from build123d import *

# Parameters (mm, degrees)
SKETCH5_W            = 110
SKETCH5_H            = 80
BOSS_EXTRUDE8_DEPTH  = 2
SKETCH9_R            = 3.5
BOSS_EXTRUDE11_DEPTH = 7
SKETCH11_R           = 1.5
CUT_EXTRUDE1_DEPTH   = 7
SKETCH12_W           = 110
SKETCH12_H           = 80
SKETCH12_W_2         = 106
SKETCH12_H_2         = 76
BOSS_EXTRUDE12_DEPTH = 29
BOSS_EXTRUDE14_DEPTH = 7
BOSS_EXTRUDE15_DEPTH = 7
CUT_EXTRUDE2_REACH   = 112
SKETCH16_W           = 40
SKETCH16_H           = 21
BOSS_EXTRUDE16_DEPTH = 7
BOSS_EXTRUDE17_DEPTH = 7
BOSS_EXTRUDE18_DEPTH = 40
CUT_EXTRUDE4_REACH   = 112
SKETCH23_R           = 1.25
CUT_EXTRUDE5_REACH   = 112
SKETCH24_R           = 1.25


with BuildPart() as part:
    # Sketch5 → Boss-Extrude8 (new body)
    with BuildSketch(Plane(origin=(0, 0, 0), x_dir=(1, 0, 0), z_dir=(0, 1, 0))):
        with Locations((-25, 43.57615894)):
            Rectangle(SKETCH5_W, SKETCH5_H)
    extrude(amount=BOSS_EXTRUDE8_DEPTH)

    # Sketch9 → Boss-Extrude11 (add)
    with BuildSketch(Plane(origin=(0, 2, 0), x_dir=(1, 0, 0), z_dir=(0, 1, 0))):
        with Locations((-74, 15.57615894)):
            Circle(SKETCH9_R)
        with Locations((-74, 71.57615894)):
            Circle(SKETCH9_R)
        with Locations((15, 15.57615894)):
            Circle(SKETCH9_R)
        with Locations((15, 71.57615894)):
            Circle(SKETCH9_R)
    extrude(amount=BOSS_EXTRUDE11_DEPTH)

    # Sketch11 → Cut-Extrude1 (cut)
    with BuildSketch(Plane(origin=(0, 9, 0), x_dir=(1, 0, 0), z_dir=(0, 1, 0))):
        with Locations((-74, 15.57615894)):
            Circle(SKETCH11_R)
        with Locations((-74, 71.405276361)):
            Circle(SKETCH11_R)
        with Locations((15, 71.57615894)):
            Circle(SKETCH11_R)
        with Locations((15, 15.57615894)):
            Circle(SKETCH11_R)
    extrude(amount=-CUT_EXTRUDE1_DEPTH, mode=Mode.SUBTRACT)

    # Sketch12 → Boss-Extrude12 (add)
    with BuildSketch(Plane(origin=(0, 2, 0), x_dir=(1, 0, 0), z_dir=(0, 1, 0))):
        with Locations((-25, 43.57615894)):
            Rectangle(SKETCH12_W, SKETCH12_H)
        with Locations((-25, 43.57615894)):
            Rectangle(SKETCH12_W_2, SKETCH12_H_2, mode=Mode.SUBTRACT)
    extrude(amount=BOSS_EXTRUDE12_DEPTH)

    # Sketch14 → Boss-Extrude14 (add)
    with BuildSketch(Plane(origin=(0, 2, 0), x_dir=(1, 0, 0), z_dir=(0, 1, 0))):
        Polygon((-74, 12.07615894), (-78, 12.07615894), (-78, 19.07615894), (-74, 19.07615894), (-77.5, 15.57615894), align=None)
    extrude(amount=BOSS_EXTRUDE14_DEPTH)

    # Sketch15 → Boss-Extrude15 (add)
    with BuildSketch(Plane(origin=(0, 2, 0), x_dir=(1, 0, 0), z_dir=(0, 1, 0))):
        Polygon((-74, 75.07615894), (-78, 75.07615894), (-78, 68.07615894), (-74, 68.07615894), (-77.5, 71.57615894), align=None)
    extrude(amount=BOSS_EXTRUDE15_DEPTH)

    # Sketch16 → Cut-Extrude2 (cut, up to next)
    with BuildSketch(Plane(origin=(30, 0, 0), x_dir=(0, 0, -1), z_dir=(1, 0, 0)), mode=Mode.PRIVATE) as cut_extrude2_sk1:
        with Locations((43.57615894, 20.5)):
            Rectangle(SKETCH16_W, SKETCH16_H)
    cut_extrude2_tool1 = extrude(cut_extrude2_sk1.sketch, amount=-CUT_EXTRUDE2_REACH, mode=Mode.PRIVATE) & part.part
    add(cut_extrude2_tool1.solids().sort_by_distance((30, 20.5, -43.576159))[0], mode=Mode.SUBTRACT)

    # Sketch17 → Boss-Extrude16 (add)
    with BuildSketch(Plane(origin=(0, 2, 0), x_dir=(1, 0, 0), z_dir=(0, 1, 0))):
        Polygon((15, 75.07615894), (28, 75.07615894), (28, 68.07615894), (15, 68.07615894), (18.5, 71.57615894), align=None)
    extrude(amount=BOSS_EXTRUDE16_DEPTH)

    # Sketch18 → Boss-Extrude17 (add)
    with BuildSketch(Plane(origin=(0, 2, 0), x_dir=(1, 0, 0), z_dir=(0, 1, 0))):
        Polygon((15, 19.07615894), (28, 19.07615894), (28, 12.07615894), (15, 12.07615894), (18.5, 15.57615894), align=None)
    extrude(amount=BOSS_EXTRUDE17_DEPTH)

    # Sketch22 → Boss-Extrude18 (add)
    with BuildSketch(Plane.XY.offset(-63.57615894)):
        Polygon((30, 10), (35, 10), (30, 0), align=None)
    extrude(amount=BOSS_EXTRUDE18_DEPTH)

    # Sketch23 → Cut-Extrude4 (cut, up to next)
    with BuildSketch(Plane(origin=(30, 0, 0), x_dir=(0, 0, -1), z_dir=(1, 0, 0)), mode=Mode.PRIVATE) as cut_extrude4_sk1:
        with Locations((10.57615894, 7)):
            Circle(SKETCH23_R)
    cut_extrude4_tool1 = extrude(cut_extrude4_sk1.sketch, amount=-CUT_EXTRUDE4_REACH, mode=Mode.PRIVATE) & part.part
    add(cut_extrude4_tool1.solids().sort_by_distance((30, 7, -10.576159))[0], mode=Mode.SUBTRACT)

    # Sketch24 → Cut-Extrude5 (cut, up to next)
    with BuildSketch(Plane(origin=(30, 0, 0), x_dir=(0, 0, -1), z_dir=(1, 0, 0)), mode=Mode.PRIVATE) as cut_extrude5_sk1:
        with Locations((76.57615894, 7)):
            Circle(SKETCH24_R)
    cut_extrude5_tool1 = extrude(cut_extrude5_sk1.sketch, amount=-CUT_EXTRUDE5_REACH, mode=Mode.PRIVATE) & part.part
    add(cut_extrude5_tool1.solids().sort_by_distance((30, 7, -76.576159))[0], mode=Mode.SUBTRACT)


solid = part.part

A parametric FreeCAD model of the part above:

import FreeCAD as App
import Part
import Sketcher
from FreeCAD import Vector

doc = App.newDocument("Part")
body = doc.addObject("PartDesign::Body", "Body")

# Sketch on XZ plane
sketch1 = body.newObject("Sketcher::SketchObject", "Sketch")
sketch1.AttachmentSupport = (doc.getObject("XZ_Plane"), [""])
sketch1.MapMode = "FlatFace"
sketch1.addGeometry([
    Part.LineSegment(Vector(-80, -83.576159, 0), Vector(-80, -3.576159, 0)),
    Part.LineSegment(Vector(-80, -3.576159, 0), Vector(30, -3.576159, 0)),
    Part.LineSegment(Vector(30, -3.576159, 0), Vector(30, -83.576159, 0)),
    Part.LineSegment(Vector(30, -83.576159, 0), Vector(-80, -83.576159, 0)),
], False)
sketch1.addConstraint([
    Sketcher.Constraint("Coincident", 0, 2, 1, 1),
    Sketcher.Constraint("Coincident", 1, 2, 2, 1),
    Sketcher.Constraint("Coincident", 2, 2, 3, 1),
    Sketcher.Constraint("Coincident", 3, 2, 0, 1),
    Sketcher.Constraint("Vertical", 0),
    Sketcher.Constraint("Horizontal", 1),
    Sketcher.Constraint("Vertical", 2),
    Sketcher.Constraint("Horizontal", 3),
    Sketcher.Constraint("DistanceX", 1, 1, 1, 2, 110.0),
    Sketcher.Constraint("DistanceY", 0, 1, 0, 2, 80.0),
    Sketcher.Constraint("DistanceX", 0, 2, -1, 1, 80.0),
    Sketcher.Constraint("DistanceY", 0, 2, -1, 1, 3.576159),
])
pad1 = body.newObject("PartDesign::Pad", "Pad")
pad1.Profile = sketch1
pad1.Length = 2
pad1.Reversed = True

# Sketch on XZ plane
sketch2 = body.newObject("Sketcher::SketchObject", "Sketch001")
sketch2.AttachmentSupport = (doc.getObject("XZ_Plane"), [""])
sketch2.MapMode = "FlatFace"
sketch2.AttachmentOffset = App.Placement(Vector(0, 0, -2), App.Rotation())
sketch2.addGeometry([
    Part.Circle(Vector(-74, -15.576159, 0), Vector(0, 0, 1), 3.5),
    Part.Circle(Vector(-74, -71.576159, 0), Vector(0, 0, 1), 3.5),
    Part.Circle(Vector(15, -15.576159, 0), Vector(0, 0, 1), 3.5),
    Part.Circle(Vector(15, -71.576159, 0), Vector(0, 0, 1), 3.5),
], False)
sketch2.addConstraint([
    Sketcher.Constraint("Equal", 0, 1),
    Sketcher.Constraint("Equal", 1, 2),
    Sketcher.Constraint("Equal", 2, 3),
    Sketcher.Constraint("Horizontal", 0, 3, 2, 3),
    Sketcher.Constraint("Horizontal", 1, 3, 3, 3),
    Sketcher.Constraint("Vertical", 0, 3, 1, 3),
    Sketcher.Constraint("Vertical", 2, 3, 3, 3),
    Sketcher.Constraint("Diameter", 0, 7.0),
    Sketcher.Constraint("DistanceX", 0, 3, -1, 1, 74.0),
    Sketcher.Constraint("DistanceX", -1, 1, 2, 3, 15.0),
    Sketcher.Constraint("DistanceY", 1, 3, 0, 3, 56.0),
    Sketcher.Constraint("DistanceY", 0, 3, -1, 1, 15.576159),
])
pad2 = body.newObject("PartDesign::Pad", "Pad001")
pad2.Profile = sketch2
pad2.Length = 7
pad2.Reversed = True

# Sketch on XZ plane
sketch3 = body.newObject("Sketcher::SketchObject", "Sketch002")
sketch3.AttachmentSupport = (doc.getObject("XZ_Plane"), [""])
sketch3.MapMode = "FlatFace"
sketch3.AttachmentOffset = App.Placement(Vector(0, 0, -9), App.Rotation())
sketch3.addGeometry([
    Part.Circle(Vector(-74, -15.576159, 0), Vector(0, 0, 1), 1.5),
    Part.Circle(Vector(-74, -71.405276, 0), Vector(0, 0, 1), 1.5),
    Part.Circle(Vector(15, -71.576159, 0), Vector(0, 0, 1), 1.5),
    Part.Circle(Vector(15, -15.576159, 0), Vector(0, 0, 1), 1.5),
], False)
sketch3.addConstraint([
    Sketcher.Constraint("Equal", 0, 1),
    Sketcher.Constraint("Equal", 1, 2),
    Sketcher.Constraint("Equal", 2, 3),
    Sketcher.Constraint("Horizontal", 0, 3, 3, 3),
    Sketcher.Constraint("Vertical", 0, 3, 1, 3),
    Sketcher.Constraint("Vertical", 2, 3, 3, 3),
    Sketcher.Constraint("Diameter", 0, 3.0),
    Sketcher.Constraint("DistanceX", 0, 3, -1, 1, 74.0),
    Sketcher.Constraint("DistanceX", -1, 1, 2, 3, 15.0),
    Sketcher.Constraint("DistanceY", 2, 3, 0, 3, 56.0),
    Sketcher.Constraint("DistanceY", 0, 3, -1, 1, 15.576159),
    Sketcher.Constraint("DistanceY", 1, 3, -1, 1, 71.405276),
])
pocket1 = body.newObject("PartDesign::Pocket", "Pocket")
pocket1.Profile = sketch3
pocket1.Length = 7
pocket1.Reversed = True

# Sketch on XZ plane
sketch4 = body.newObject("Sketcher::SketchObject", "Sketch003")
sketch4.AttachmentSupport = (doc.getObject("XZ_Plane"), [""])
sketch4.MapMode = "FlatFace"
sketch4.AttachmentOffset = App.Placement(Vector(0, 0, -2), App.Rotation())
sketch4.addGeometry([
    Part.LineSegment(Vector(-80, -83.576159, 0), Vector(-80, -3.576159, 0)),  # 0
    Part.LineSegment(Vector(-80, -3.576159, 0), Vector(30, -3.576159, 0)),  # 1
    Part.LineSegment(Vector(30, -3.576159, 0), Vector(30, -83.576159, 0)),  # 2
    Part.LineSegment(Vector(30, -83.576159, 0), Vector(-80, -83.576159, 0)),  # 3
    Part.LineSegment(Vector(28, -5.576159, 0), Vector(-78, -5.576159, 0)),  # 4
    Part.LineSegment(Vector(-78, -5.576159, 0), Vector(-78, -81.576159, 0)),  # 5
    Part.LineSegment(Vector(-78, -81.576159, 0), Vector(28, -81.576159, 0)),  # 6
    Part.LineSegment(Vector(28, -81.576159, 0), Vector(28, -5.576159, 0)),  # 7
], False)
sketch4.addConstraint([
    Sketcher.Constraint("Coincident", 0, 2, 1, 1),
    Sketcher.Constraint("Coincident", 1, 2, 2, 1),
    Sketcher.Constraint("Coincident", 2, 2, 3, 1),
    Sketcher.Constraint("Coincident", 3, 2, 0, 1),
    Sketcher.Constraint("Coincident", 4, 2, 5, 1),
    Sketcher.Constraint("Coincident", 5, 2, 6, 1),
    Sketcher.Constraint("Coincident", 6, 2, 7, 1),
    Sketcher.Constraint("Coincident", 7, 2, 4, 1),
    Sketcher.Constraint("Vertical", 0),
    Sketcher.Constraint("Horizontal", 1),
    Sketcher.Constraint("Vertical", 2),
    Sketcher.Constraint("Horizontal", 3),
    Sketcher.Constraint("Horizontal", 4),
    Sketcher.Constraint("Vertical", 5),
    Sketcher.Constraint("Horizontal", 6),
    Sketcher.Constraint("Vertical", 7),
    Sketcher.Constraint("DistanceX", 1, 1, 1, 2, 110.0),
    Sketcher.Constraint("DistanceX", 4, 2, 4, 1, 106.0),
    Sketcher.Constraint("DistanceY", 0, 1, 0, 2, 80.0),
    Sketcher.Constraint("DistanceY", 5, 2, 5, 1, 76.0),
    Sketcher.Constraint("DistanceX", 0, 2, -1, 1, 80.0),
    Sketcher.Constraint("DistanceX", 4, 2, -1, 1, 78.0),
    Sketcher.Constraint("DistanceY", 4, 2, 0, 2, 2.0),
    Sketcher.Constraint("DistanceY", 0, 2, -1, 1, 3.576159),
])
pad3 = body.newObject("PartDesign::Pad", "Pad002")
pad3.Profile = sketch4
pad3.Length = 29
pad3.Reversed = True

# Sketch on XZ plane
sketch5 = body.newObject("Sketcher::SketchObject", "Sketch004")
sketch5.AttachmentSupport = (doc.getObject("XZ_Plane"), [""])
sketch5.MapMode = "FlatFace"
sketch5.AttachmentOffset = App.Placement(Vector(0, 0, -2), App.Rotation())
sketch5.addGeometry([
    Part.LineSegment(Vector(-78, -12.076159, 0), Vector(-74, -12.076159, 0)),  # 0
    Part.LineSegment(Vector(-74, -12.076159, 0), Vector(-77.5, -15.576159, 0)),  # 1
    Part.LineSegment(Vector(-77.5, -15.576159, 0), Vector(-74, -19.076159, 0)),  # 2
    Part.LineSegment(Vector(-74, -19.076159, 0), Vector(-78, -19.076159, 0)),  # 3
    Part.LineSegment(Vector(-78, -19.076159, 0), Vector(-78, -12.076159, 0)),  # 4
], False)
sketch5.addConstraint([
    Sketcher.Constraint("Coincident", 0, 2, 1, 1),
    Sketcher.Constraint("Coincident", 1, 2, 2, 1),
    Sketcher.Constraint("Coincident", 2, 2, 3, 1),
    Sketcher.Constraint("Coincident", 3, 2, 4, 1),
    Sketcher.Constraint("Coincident", 4, 2, 0, 1),
    Sketcher.Constraint("Horizontal", 0),
    Sketcher.Constraint("Horizontal", 3),
    Sketcher.Constraint("Vertical", 4),
    Sketcher.Constraint("Perpendicular", 1, 2),
    Sketcher.Constraint("Vertical", 0, 2, 2, 2),
    Sketcher.Constraint("Equal", 1, 2),
    Sketcher.Constraint("DistanceX", 0, 1, 0, 2, 4.0),
    Sketcher.Constraint("DistanceY", 4, 1, 4, 2, 7.0),
    Sketcher.Constraint("DistanceX", 0, 2, -1, 1, 74.0),
    Sketcher.Constraint("DistanceY", 0, 2, -1, 1, 12.076159),
])
pad4 = body.newObject("PartDesign::Pad", "Pad003")
pad4.Profile = sketch5
pad4.Length = 7
pad4.Reversed = True

# Sketch on XZ plane
sketch6 = body.newObject("Sketcher::SketchObject", "Sketch005")
sketch6.AttachmentSupport = (doc.getObject("XZ_Plane"), [""])
sketch6.MapMode = "FlatFace"
sketch6.AttachmentOffset = App.Placement(Vector(0, 0, -2), App.Rotation())
sketch6.addGeometry([
    Part.LineSegment(Vector(-74, -75.076159, 0), Vector(-78, -75.076159, 0)),  # 0
    Part.LineSegment(Vector(-78, -75.076159, 0), Vector(-78, -68.076159, 0)),  # 1
    Part.LineSegment(Vector(-78, -68.076159, 0), Vector(-74, -68.076159, 0)),  # 2
    Part.LineSegment(Vector(-74, -68.076159, 0), Vector(-77.5, -71.576159, 0)),  # 3
    Part.LineSegment(Vector(-77.5, -71.576159, 0), Vector(-74, -75.076159, 0)),  # 4
], False)
sketch6.addConstraint([
    Sketcher.Constraint("Coincident", 0, 2, 1, 1),
    Sketcher.Constraint("Coincident", 1, 2, 2, 1),
    Sketcher.Constraint("Coincident", 2, 2, 3, 1),
    Sketcher.Constraint("Coincident", 3, 2, 4, 1),
    Sketcher.Constraint("Coincident", 4, 2, 0, 1),
    Sketcher.Constraint("Horizontal", 0),
    Sketcher.Constraint("Vertical", 1),
    Sketcher.Constraint("Horizontal", 2),
    Sketcher.Constraint("Perpendicular", 3, 4),
    Sketcher.Constraint("Vertical", 2, 2, 4, 2),
    Sketcher.Constraint("Equal", 3, 4),
    Sketcher.Constraint("DistanceX", 0, 2, 0, 1, 4.0),
    Sketcher.Constraint("DistanceY", 1, 1, 1, 2, 7.0),
    Sketcher.Constraint("DistanceX", 0, 2, -1, 1, 78.0),
    Sketcher.Constraint("DistanceY", 0, 2, -1, 1, 75.076159),
])
pad5 = body.newObject("PartDesign::Pad", "Pad004")
pad5.Profile = sketch6
pad5.Length = 7
pad5.Reversed = True

# Sketch on YZ plane
sketch7 = body.newObject("Sketcher::SketchObject", "Sketch006")
sketch7.AttachmentSupport = (doc.getObject("YZ_Plane"), [""])
sketch7.MapMode = "FlatFace"
sketch7.AttachmentOffset = App.Placement(Vector(0, 0, 30), App.Rotation())
sketch7.addGeometry([
    Part.LineSegment(Vector(31, -23.576159, 0), Vector(10, -23.576159, 0)),
    Part.LineSegment(Vector(10, -23.576159, 0), Vector(10, -63.576159, 0)),
    Part.LineSegment(Vector(10, -63.576159, 0), Vector(31, -63.576159, 0)),
    Part.LineSegment(Vector(31, -63.576159, 0), Vector(31, -23.576159, 0)),
], False)
sketch7.addConstraint([
    Sketcher.Constraint("Coincident", 0, 2, 1, 1),
    Sketcher.Constraint("Coincident", 1, 2, 2, 1),
    Sketcher.Constraint("Coincident", 2, 2, 3, 1),
    Sketcher.Constraint("Coincident", 3, 2, 0, 1),
    Sketcher.Constraint("Horizontal", 0),
    Sketcher.Constraint("Vertical", 1),
    Sketcher.Constraint("Horizontal", 2),
    Sketcher.Constraint("Vertical", 3),
    Sketcher.Constraint("DistanceX", 0, 2, 0, 1, 21.0),
    Sketcher.Constraint("DistanceY", 1, 2, 1, 1, 40.0),
    Sketcher.Constraint("DistanceX", -1, 1, 0, 2, 10.0),
    Sketcher.Constraint("DistanceY", 0, 2, -1, 1, 23.576159),
])
pocket2 = body.newObject("PartDesign::Pocket", "Pocket001")
pocket2.Profile = sketch7
pocket2.Type = "UpToFirst"

# Sketch on XZ plane
sketch8 = body.newObject("Sketcher::SketchObject", "Sketch007")
sketch8.AttachmentSupport = (doc.getObject("XZ_Plane"), [""])
sketch8.MapMode = "FlatFace"
sketch8.AttachmentOffset = App.Placement(Vector(0, 0, -2), App.Rotation())
sketch8.addGeometry([
    Part.LineSegment(Vector(28, -75.076159, 0), Vector(15, -75.076159, 0)),  # 0
    Part.LineSegment(Vector(15, -75.076159, 0), Vector(18.5, -71.576159, 0)),  # 1
    Part.LineSegment(Vector(18.5, -71.576159, 0), Vector(15, -68.076159, 0)),  # 2
    Part.LineSegment(Vector(15, -68.076159, 0), Vector(28, -68.076159, 0)),  # 3
    Part.LineSegment(Vector(28, -68.076159, 0), Vector(28, -75.076159, 0)),  # 4
], False)
sketch8.addConstraint([
    Sketcher.Constraint("Coincident", 0, 2, 1, 1),
    Sketcher.Constraint("Coincident", 1, 2, 2, 1),
    Sketcher.Constraint("Coincident", 2, 2, 3, 1),
    Sketcher.Constraint("Coincident", 3, 2, 4, 1),
    Sketcher.Constraint("Coincident", 4, 2, 0, 1),
    Sketcher.Constraint("Horizontal", 0),
    Sketcher.Constraint("Horizontal", 3),
    Sketcher.Constraint("Vertical", 4),
    Sketcher.Constraint("Perpendicular", 1, 2),
    Sketcher.Constraint("Vertical", 0, 2, 2, 2),
    Sketcher.Constraint("Equal", 1, 2),
    Sketcher.Constraint("DistanceX", 0, 2, 0, 1, 13.0),
    Sketcher.Constraint("DistanceY", 4, 2, 4, 1, 7.0),
    Sketcher.Constraint("DistanceX", -1, 1, 0, 2, 15.0),
    Sketcher.Constraint("DistanceY", 0, 2, -1, 1, 75.076159),
])
pad6 = body.newObject("PartDesign::Pad", "Pad005")
pad6.Profile = sketch8
pad6.Length = 7
pad6.Reversed = True

# Sketch on XZ plane
sketch9 = body.newObject("Sketcher::SketchObject", "Sketch008")
sketch9.AttachmentSupport = (doc.getObject("XZ_Plane"), [""])
sketch9.MapMode = "FlatFace"
sketch9.AttachmentOffset = App.Placement(Vector(0, 0, -2), App.Rotation())
sketch9.addGeometry([
    Part.LineSegment(Vector(28, -19.076159, 0), Vector(15, -19.076159, 0)),  # 0
    Part.LineSegment(Vector(15, -19.076159, 0), Vector(18.5, -15.576159, 0)),  # 1
    Part.LineSegment(Vector(18.5, -15.576159, 0), Vector(15, -12.076159, 0)),  # 2
    Part.LineSegment(Vector(15, -12.076159, 0), Vector(28, -12.076159, 0)),  # 3
    Part.LineSegment(Vector(28, -12.076159, 0), Vector(28, -19.076159, 0)),  # 4
], False)
sketch9.addConstraint([
    Sketcher.Constraint("Coincident", 0, 2, 1, 1),
    Sketcher.Constraint("Coincident", 1, 2, 2, 1),
    Sketcher.Constraint("Coincident", 2, 2, 3, 1),
    Sketcher.Constraint("Coincident", 3, 2, 4, 1),
    Sketcher.Constraint("Coincident", 4, 2, 0, 1),
    Sketcher.Constraint("Horizontal", 0),
    Sketcher.Constraint("Horizontal", 3),
    Sketcher.Constraint("Vertical", 4),
    Sketcher.Constraint("Perpendicular", 1, 2),
    Sketcher.Constraint("Vertical", 0, 2, 2, 2),
    Sketcher.Constraint("Equal", 1, 2),
    Sketcher.Constraint("DistanceX", 0, 2, 0, 1, 13.0),
    Sketcher.Constraint("DistanceY", 4, 2, 4, 1, 7.0),
    Sketcher.Constraint("DistanceX", -1, 1, 0, 2, 15.0),
    Sketcher.Constraint("DistanceY", 0, 2, -1, 1, 19.076159),
])
pad7 = body.newObject("PartDesign::Pad", "Pad006")
pad7.Profile = sketch9
pad7.Length = 7
pad7.Reversed = True

# Sketch on XY plane
sketch10 = body.newObject("Sketcher::SketchObject", "Sketch009")
sketch10.AttachmentSupport = (doc.getObject("XY_Plane"), [""])
sketch10.MapMode = "FlatFace"
sketch10.AttachmentOffset = App.Placement(Vector(0, 0, -63.576159), App.Rotation())
sketch10.addGeometry([
    Part.LineSegment(Vector(35, 10, 0), Vector(30, 10, 0)),
    Part.LineSegment(Vector(30, 10, 0), Vector(30, 0, 0)),
    Part.LineSegment(Vector(30, 0, 0), Vector(35, 10, 0)),
], False)
sketch10.addConstraint([
    Sketcher.Constraint("Coincident", 0, 2, 1, 1),
    Sketcher.Constraint("Coincident", 1, 2, 2, 1),
    Sketcher.Constraint("Coincident", 2, 2, 0, 1),
    Sketcher.Constraint("Horizontal", 0),
    Sketcher.Constraint("Vertical", 1),
    Sketcher.Constraint("PointOnObject", 1, 2, -1),
    Sketcher.Constraint("DistanceX", 0, 2, 0, 1, 5.0),
    Sketcher.Constraint("DistanceY", 1, 2, 1, 1, 10.0),
    Sketcher.Constraint("DistanceX", -1, 1, 0, 2, 30.0),
])
pad8 = body.newObject("PartDesign::Pad", "Pad007")
pad8.Profile = sketch10
pad8.Length = 40

# Sketch on YZ plane
sketch11 = body.newObject("Sketcher::SketchObject", "Sketch010")
sketch11.AttachmentSupport = (doc.getObject("YZ_Plane"), [""])
sketch11.MapMode = "FlatFace"
sketch11.AttachmentOffset = App.Placement(Vector(0, 0, 30), App.Rotation())
sketch11.addGeometry(Part.Circle(Vector(7, -10.576159, 0), Vector(0, 0, 1), 1.25), False)
sketch11.addConstraint([
    Sketcher.Constraint("Diameter", 0, 2.5),
    Sketcher.Constraint("DistanceX", -1, 1, 0, 3, 7.0),
    Sketcher.Constraint("DistanceY", 0, 3, -1, 1, 10.576159),
])
pocket3 = body.newObject("PartDesign::Pocket", "Pocket002")
pocket3.Profile = sketch11
pocket3.Type = "UpToFirst"

# Sketch on YZ plane
sketch12 = body.newObject("Sketcher::SketchObject", "Sketch011")
sketch12.AttachmentSupport = (doc.getObject("YZ_Plane"), [""])
sketch12.MapMode = "FlatFace"
sketch12.AttachmentOffset = App.Placement(Vector(0, 0, 30), App.Rotation())
sketch12.addGeometry(Part.Circle(Vector(7, -76.576159, 0), Vector(0, 0, 1), 1.25), False)
sketch12.addConstraint([
    Sketcher.Constraint("Diameter", 0, 2.5),
    Sketcher.Constraint("DistanceX", -1, 1, 0, 3, 7.0),
    Sketcher.Constraint("DistanceY", 0, 3, -1, 1, 76.576159),
])
pocket4 = body.newObject("PartDesign::Pocket", "Pocket003")
pocket4.Profile = sketch12
pocket4.Type = "UpToFirst"

doc.recompute()
